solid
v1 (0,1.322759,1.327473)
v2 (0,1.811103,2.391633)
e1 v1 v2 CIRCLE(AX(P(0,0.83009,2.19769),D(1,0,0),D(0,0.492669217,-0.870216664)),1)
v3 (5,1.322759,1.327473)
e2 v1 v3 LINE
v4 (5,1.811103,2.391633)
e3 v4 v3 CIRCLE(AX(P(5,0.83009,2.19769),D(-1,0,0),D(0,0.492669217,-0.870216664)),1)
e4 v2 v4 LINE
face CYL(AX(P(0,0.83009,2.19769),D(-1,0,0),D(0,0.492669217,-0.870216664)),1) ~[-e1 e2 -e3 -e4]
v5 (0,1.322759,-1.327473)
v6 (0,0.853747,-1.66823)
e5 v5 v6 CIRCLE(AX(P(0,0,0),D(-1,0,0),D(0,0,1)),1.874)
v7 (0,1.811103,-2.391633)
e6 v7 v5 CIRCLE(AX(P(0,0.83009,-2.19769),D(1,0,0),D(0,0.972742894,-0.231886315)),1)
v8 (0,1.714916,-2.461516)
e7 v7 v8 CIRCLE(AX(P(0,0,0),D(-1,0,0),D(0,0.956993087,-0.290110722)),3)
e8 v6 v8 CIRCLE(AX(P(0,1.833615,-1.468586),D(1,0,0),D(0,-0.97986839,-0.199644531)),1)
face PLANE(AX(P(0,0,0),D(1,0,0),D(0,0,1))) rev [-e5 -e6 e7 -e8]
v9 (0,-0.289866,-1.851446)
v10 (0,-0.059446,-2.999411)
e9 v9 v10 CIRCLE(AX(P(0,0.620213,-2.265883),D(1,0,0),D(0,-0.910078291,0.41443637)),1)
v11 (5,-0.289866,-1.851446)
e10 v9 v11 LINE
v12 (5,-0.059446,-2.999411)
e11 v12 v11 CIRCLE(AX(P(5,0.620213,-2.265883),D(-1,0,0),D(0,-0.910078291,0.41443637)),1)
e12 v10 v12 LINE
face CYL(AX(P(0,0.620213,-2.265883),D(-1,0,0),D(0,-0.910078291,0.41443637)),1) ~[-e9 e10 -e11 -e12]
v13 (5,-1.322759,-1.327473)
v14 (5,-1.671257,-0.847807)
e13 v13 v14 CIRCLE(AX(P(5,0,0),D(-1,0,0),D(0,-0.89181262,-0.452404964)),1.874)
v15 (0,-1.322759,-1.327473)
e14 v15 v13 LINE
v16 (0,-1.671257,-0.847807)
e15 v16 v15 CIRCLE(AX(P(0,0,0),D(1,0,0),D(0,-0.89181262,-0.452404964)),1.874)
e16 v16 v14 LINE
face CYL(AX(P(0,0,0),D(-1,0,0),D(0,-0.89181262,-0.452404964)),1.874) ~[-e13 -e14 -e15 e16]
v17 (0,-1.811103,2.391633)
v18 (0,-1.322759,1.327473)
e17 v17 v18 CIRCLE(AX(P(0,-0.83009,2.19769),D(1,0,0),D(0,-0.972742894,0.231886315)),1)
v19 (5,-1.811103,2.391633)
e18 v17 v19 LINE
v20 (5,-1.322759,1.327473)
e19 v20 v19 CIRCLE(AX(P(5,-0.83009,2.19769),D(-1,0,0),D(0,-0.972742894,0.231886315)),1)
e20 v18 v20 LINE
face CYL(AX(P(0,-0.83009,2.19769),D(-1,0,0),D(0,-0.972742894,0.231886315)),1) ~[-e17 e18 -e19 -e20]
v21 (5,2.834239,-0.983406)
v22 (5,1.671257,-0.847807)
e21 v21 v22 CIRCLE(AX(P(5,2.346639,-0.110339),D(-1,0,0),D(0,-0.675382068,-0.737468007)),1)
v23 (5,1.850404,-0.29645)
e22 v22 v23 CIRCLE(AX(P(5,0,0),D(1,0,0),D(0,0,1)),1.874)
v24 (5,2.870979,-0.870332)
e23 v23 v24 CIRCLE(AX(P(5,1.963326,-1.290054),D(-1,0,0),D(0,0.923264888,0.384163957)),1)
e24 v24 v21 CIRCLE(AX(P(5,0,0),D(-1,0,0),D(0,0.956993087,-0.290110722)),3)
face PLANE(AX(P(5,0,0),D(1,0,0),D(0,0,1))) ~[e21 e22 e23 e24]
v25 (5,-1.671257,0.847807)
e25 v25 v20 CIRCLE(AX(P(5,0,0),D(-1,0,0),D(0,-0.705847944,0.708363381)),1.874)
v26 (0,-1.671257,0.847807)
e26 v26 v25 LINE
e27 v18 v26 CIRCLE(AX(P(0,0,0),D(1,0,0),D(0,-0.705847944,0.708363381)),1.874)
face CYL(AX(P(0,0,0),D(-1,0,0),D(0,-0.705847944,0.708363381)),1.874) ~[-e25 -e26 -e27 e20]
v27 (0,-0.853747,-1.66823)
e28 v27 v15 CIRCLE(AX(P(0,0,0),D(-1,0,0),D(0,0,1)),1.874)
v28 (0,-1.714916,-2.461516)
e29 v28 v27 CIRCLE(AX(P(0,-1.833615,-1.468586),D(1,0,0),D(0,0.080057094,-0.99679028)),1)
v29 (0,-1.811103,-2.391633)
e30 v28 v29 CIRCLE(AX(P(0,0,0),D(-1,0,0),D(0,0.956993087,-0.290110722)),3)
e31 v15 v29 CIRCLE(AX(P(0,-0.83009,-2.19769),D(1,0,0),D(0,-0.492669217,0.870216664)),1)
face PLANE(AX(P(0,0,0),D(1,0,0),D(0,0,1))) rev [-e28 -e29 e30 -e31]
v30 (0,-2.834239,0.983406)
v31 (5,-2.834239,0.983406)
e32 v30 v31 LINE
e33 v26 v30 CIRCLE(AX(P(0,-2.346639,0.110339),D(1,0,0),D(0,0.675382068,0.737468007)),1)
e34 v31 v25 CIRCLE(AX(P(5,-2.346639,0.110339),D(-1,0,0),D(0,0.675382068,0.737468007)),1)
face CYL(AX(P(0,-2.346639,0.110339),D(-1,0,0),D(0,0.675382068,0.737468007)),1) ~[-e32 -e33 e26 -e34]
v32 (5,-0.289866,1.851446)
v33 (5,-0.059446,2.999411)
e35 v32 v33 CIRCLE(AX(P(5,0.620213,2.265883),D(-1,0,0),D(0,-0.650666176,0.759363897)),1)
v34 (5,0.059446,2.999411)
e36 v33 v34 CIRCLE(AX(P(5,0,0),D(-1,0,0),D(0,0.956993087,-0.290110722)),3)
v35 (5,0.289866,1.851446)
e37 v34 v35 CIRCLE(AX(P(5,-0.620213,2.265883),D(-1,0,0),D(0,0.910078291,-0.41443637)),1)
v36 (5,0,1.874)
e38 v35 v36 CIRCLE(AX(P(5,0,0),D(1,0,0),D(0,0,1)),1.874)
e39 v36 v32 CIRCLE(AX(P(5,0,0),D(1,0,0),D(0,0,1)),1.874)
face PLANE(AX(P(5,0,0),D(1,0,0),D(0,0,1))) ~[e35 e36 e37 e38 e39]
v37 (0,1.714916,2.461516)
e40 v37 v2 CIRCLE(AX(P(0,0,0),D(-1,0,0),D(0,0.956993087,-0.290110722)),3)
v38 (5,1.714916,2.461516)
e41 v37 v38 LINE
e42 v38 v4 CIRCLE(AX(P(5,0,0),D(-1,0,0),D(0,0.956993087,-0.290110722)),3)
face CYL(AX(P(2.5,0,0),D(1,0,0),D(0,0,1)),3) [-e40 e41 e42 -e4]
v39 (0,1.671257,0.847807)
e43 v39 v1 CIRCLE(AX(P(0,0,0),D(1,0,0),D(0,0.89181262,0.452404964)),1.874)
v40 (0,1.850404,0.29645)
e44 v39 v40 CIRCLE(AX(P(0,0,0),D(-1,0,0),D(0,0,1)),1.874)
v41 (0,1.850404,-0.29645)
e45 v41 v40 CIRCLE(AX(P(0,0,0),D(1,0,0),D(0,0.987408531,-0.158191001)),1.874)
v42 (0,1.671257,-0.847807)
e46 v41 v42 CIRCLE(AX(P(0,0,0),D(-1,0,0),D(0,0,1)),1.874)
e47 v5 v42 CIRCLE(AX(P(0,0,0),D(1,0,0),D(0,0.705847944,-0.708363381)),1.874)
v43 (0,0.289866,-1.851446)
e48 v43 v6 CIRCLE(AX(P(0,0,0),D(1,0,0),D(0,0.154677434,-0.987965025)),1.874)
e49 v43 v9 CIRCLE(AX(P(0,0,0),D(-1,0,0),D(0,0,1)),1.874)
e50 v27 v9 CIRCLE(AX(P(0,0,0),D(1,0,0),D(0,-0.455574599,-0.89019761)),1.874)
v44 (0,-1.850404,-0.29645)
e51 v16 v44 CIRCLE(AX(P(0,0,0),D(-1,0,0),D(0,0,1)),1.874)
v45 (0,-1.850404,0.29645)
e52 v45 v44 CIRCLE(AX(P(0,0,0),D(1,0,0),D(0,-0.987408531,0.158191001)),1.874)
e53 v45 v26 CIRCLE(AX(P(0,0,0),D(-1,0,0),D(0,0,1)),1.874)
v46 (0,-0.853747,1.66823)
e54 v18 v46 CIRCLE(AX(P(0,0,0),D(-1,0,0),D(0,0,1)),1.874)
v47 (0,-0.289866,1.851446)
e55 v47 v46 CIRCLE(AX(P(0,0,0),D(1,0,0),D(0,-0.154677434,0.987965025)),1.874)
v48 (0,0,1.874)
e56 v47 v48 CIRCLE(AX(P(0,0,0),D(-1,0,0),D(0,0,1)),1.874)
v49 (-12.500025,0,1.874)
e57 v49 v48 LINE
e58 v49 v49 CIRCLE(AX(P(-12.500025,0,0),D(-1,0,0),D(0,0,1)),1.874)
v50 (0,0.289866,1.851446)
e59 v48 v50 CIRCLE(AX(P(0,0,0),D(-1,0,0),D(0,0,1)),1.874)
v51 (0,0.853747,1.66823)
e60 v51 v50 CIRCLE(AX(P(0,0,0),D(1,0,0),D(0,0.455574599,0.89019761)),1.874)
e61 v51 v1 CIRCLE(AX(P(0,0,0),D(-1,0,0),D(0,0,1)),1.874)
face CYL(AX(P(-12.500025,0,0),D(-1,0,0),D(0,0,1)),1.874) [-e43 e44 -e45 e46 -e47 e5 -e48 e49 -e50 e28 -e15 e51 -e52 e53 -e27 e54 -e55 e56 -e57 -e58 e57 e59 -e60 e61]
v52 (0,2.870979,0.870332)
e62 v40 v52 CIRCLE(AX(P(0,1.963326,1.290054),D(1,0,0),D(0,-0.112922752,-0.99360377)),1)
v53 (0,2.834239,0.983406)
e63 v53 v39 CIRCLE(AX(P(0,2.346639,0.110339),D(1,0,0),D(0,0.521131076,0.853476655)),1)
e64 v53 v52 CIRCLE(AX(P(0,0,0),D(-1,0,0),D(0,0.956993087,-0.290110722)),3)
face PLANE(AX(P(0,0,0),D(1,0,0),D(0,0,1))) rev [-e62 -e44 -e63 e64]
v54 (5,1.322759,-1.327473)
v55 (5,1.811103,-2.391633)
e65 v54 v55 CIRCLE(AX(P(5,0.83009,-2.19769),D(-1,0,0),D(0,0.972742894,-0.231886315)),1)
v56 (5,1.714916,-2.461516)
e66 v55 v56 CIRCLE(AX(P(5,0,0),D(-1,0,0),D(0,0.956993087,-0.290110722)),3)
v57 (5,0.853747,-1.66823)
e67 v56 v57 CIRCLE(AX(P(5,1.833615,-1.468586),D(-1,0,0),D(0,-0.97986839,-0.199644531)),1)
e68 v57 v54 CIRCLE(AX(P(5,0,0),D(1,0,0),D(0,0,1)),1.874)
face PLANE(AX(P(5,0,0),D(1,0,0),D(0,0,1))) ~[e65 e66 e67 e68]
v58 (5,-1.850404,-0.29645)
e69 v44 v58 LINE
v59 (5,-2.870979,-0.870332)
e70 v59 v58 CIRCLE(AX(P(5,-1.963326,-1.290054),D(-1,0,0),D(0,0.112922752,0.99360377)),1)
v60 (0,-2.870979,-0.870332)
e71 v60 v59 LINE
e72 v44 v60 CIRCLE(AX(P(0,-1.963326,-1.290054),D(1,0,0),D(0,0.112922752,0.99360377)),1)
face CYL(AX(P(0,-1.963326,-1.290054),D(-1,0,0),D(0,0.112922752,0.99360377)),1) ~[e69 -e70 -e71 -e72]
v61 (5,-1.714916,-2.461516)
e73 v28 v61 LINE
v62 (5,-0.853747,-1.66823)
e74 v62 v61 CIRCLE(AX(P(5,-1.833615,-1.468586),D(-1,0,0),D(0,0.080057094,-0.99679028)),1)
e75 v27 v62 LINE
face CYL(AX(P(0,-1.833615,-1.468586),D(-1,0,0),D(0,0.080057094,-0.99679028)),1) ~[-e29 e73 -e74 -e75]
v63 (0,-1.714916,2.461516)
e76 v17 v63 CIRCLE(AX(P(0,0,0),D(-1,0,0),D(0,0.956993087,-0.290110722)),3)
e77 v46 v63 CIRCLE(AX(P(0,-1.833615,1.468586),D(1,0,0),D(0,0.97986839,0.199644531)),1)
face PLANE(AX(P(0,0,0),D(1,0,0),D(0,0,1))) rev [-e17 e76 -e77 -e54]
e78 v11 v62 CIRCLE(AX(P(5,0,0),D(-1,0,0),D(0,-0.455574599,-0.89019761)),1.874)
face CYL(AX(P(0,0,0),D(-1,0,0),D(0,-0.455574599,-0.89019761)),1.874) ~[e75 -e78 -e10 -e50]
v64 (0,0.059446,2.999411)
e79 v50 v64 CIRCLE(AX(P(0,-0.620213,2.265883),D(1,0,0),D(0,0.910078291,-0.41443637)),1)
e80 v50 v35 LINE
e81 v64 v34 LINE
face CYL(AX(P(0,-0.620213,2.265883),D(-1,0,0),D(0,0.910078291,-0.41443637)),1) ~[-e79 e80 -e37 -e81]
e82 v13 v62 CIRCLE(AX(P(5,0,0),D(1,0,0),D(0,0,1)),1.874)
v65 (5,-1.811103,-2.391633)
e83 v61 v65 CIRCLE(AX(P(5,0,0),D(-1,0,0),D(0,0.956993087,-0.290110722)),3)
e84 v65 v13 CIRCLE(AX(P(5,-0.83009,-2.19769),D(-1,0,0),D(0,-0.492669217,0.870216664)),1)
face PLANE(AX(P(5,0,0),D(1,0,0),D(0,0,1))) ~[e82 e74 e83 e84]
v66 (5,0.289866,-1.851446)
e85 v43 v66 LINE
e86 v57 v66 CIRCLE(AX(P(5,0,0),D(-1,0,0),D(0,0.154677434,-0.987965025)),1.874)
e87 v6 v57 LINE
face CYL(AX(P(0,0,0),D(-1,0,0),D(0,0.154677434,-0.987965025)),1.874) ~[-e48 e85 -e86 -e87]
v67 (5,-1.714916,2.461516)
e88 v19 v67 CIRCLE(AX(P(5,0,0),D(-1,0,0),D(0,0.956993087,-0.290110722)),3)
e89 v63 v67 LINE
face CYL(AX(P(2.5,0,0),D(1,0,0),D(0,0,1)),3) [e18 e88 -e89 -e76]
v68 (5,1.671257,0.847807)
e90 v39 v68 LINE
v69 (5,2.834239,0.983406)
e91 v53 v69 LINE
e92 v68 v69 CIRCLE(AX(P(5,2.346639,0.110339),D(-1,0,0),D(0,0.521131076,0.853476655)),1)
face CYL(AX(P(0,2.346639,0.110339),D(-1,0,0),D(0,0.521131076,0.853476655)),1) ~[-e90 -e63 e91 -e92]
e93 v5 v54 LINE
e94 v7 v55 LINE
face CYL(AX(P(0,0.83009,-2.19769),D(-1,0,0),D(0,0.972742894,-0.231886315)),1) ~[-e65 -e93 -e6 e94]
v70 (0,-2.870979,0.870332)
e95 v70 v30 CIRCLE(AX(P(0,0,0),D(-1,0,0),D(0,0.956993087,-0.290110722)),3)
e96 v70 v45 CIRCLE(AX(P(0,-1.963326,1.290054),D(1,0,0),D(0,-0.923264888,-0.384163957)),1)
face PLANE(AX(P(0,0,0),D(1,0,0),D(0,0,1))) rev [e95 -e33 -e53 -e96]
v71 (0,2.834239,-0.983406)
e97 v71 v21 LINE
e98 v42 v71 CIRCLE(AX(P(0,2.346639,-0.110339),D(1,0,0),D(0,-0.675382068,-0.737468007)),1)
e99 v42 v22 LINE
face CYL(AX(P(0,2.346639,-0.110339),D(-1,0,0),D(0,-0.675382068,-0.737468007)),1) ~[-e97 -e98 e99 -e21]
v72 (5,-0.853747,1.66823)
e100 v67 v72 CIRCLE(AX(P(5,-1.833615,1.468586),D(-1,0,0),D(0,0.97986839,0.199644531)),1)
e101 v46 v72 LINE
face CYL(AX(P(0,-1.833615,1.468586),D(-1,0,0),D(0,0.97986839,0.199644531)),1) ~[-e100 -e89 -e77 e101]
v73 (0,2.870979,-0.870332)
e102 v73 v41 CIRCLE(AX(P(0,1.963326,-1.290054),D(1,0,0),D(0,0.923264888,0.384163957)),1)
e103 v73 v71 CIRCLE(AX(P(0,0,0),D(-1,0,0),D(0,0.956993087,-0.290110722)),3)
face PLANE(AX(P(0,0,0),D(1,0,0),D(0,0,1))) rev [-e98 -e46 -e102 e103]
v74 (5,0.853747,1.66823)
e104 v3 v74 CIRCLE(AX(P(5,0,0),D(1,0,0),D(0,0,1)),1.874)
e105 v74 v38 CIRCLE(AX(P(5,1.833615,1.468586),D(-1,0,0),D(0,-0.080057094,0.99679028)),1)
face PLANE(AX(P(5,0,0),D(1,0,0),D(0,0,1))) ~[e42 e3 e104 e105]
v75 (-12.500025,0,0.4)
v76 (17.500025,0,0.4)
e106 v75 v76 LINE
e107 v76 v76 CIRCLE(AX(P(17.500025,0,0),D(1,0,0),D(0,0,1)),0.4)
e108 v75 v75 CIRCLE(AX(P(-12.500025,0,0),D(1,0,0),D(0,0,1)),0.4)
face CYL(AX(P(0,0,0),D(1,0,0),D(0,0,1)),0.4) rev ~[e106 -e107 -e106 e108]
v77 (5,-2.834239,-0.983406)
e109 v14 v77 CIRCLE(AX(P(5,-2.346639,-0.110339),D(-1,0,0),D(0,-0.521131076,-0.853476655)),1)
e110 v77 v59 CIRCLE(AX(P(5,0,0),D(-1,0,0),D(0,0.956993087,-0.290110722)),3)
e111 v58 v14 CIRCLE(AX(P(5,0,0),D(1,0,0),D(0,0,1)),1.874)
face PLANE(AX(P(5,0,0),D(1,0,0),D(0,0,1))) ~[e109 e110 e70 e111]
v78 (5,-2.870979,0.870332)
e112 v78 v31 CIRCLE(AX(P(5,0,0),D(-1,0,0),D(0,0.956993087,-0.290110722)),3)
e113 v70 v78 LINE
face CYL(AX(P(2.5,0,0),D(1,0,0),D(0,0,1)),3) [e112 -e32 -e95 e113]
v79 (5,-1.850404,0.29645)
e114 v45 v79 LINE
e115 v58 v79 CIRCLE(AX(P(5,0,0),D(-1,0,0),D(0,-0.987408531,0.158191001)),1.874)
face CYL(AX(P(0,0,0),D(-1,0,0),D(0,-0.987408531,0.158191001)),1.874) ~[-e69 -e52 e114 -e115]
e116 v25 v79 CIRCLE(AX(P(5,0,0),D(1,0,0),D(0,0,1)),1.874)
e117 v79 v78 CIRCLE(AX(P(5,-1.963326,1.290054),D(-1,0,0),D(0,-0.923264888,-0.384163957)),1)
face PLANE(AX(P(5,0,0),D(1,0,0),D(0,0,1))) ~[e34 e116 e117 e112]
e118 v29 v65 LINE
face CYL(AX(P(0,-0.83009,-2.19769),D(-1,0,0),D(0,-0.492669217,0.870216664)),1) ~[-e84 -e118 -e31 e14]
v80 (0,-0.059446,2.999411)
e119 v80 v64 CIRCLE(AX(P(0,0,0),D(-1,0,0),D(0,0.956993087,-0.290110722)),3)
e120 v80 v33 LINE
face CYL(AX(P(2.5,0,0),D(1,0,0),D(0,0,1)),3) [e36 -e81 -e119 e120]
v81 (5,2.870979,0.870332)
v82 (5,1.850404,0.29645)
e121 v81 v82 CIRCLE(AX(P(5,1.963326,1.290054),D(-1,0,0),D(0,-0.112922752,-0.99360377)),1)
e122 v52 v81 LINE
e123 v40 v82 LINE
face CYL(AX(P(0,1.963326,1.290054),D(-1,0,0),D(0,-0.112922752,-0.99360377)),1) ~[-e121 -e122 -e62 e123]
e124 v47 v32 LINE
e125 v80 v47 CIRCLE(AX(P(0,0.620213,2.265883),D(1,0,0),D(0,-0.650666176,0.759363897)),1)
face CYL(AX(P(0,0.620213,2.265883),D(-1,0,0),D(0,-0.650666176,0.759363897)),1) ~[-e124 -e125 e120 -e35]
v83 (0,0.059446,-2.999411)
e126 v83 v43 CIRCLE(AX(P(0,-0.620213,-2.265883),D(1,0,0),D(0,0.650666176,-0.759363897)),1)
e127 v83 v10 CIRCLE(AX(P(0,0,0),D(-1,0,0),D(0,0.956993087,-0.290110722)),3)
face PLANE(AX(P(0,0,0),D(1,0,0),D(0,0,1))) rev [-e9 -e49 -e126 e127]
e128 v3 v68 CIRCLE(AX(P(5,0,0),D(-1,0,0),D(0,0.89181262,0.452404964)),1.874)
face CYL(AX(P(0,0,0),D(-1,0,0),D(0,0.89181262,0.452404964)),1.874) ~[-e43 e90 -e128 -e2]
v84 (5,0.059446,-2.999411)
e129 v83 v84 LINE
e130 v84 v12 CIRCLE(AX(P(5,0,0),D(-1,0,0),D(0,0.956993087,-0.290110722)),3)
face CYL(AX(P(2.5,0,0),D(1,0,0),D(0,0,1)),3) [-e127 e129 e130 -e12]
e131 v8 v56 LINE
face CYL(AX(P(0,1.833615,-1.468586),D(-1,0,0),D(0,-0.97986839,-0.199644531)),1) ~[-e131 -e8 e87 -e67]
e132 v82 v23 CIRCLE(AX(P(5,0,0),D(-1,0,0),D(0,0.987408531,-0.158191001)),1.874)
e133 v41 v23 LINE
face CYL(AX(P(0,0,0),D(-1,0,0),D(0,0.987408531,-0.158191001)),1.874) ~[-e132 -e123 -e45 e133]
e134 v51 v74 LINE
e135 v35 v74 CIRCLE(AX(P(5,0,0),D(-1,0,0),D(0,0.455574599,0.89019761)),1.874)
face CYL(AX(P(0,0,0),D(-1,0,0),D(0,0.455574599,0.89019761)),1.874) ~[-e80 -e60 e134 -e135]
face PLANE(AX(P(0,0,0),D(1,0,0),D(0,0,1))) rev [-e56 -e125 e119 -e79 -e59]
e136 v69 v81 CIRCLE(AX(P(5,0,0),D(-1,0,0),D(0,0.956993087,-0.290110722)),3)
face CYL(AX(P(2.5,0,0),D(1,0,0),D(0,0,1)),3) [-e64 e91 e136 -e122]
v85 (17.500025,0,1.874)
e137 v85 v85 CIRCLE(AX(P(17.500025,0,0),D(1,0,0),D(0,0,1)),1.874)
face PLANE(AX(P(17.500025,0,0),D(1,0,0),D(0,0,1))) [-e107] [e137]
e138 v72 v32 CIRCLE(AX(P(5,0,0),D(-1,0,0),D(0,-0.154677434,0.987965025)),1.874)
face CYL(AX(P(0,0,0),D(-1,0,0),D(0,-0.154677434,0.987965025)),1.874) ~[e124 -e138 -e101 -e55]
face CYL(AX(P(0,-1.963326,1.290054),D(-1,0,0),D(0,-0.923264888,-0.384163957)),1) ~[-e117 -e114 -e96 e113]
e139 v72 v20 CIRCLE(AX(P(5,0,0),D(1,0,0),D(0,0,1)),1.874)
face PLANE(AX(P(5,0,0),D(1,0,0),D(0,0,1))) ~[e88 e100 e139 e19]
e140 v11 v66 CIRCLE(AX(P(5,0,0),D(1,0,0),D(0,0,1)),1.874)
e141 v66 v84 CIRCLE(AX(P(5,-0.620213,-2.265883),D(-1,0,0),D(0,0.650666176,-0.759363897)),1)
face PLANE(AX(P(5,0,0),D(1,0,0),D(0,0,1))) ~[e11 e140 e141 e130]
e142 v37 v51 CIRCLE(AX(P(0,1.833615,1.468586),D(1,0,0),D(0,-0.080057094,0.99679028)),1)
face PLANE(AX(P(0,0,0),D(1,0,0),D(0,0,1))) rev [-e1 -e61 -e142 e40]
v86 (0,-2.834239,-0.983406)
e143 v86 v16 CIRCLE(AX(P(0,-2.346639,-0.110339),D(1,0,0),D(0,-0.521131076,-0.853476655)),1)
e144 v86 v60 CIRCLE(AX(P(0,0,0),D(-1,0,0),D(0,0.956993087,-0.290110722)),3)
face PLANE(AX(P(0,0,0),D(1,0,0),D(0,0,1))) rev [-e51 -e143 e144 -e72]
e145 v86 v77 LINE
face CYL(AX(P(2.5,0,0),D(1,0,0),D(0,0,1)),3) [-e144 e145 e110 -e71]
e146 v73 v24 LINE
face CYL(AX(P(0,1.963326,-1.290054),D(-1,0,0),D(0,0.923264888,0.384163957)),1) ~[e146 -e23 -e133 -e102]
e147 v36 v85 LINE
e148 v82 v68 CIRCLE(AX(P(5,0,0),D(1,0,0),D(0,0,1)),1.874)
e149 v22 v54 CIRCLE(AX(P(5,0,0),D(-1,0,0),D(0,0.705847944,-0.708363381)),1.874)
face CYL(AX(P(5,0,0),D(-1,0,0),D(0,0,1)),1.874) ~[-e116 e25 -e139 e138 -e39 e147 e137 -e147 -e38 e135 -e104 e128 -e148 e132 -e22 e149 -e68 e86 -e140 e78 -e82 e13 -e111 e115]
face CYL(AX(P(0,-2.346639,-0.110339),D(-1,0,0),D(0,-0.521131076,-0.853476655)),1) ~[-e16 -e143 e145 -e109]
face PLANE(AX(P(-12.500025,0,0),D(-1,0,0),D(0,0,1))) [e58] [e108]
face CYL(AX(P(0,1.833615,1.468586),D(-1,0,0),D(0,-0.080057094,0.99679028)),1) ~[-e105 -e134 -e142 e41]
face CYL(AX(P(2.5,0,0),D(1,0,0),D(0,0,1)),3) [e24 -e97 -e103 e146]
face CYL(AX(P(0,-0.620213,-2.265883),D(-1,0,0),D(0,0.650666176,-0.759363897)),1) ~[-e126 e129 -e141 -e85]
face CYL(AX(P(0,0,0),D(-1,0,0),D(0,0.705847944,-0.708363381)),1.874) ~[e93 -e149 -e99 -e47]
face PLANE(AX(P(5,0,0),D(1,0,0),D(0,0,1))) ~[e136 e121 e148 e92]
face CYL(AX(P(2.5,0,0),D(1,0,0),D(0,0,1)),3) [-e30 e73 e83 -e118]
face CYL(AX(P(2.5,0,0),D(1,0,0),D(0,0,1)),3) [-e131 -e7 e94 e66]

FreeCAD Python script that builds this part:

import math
import FreeCAD as App
import Part
import Sketcher

doc = App.newDocument("Part")
body = doc.addObject("PartDesign::Body", "Body")

sketch1 = body.newObject("Sketcher::SketchObject", "Sketch")
sketch1.AttachmentSupport = (doc.getObject("XZ_Plane"), [""])
sketch1.MapMode = "FlatFace"
sketch1.addGeometry([
    Part.LineSegment(App.Vector(0, -3, 0), App.Vector(0, 0, 0)),
    Part.LineSegment(App.Vector(0, 0, 0), App.Vector(5, 0, 0)),
    Part.LineSegment(App.Vector(5, 0, 0), App.Vector(5, -3, 0)),
    Part.LineSegment(App.Vector(5, -3, 0), App.Vector(0, -3, 0)),
], False)
sketch1.addConstraint([
    Sketcher.Constraint("Coincident", 0, 2, 1, 1),
    Sketcher.Constraint("Coincident", 1, 2, 2, 1),
    Sketcher.Constraint("Coincident", 2, 2, 3, 1),
    Sketcher.Constraint("Coincident", 3, 2, 0, 1),
    Sketcher.Constraint("Vertical", 0),
    Sketcher.Constraint("Horizontal", 1),
    Sketcher.Constraint("Vertical", 2),
    Sketcher.Constraint("Horizontal", 3),
    Sketcher.Constraint("Coincident", 0, 2, -1, 1),
    Sketcher.Constraint("DistanceX", 1, 1, 1, 2, 5.0),
    Sketcher.Constraint("DistanceY", 0, 1, 0, 2, 3.0),
])
revolution = body.newObject("PartDesign::Revolution", "Revolution")
revolution.Profile = sketch1
revolution.ReferenceAxis = (sketch1, ["H_Axis"])
revolution.Angle = 360

sketch2 = body.newObject("Sketcher::SketchObject", "Sketch001")
sketch2.AttachmentSupport = (doc.getObject("YZ_Plane"), [""])
sketch2.MapMode = "FlatFace"
sketch2.addGeometry([
    Part.ArcOfCircle(Part.Circle(App.Vector(0, 0, 0), App.Vector(0, 0, 1), 1.9), math.radians(-9.1), math.radians(9.1)),
    Part.ArcOfCircle(Part.Circle(App.Vector(2, -1.3, 0), App.Vector(0, 0, 1), 1), math.radians(23), math.radians(96)),
    Part.ArcOfCircle(Part.Circle(App.Vector(0, 0, 0), App.Vector(0, 0, 1), 3), math.radians(-17), math.radians(17)),
    Part.ArcOfCircle(Part.Circle(App.Vector(2, 1.3, 0), App.Vector(0, 0, 1), 1), math.radians(-96), math.radians(-23)),
], False)
sketch2.addConstraint([
    Sketcher.Constraint("Coincident", 0, 1, 1, 2),
    Sketcher.Constraint("Coincident", 1, 1, 2, 1),
    Sketcher.Constraint("Coincident", 2, 2, 3, 2),
    Sketcher.Constraint("Coincident", 3, 1, 0, 2),
    Sketcher.Constraint("Coincident", 0, 3, -1, 1),
    Sketcher.Constraint("Coincident", 2, 3, -1, 1),
    Sketcher.Constraint("Equal", 1, 3),
    Sketcher.Constraint("Symmetric", 1, 3, 3, 3, -1),
    Sketcher.Constraint("Radius", 1, 1.0),
    Sketcher.Constraint("Radius", 0, 1.874),
    Sketcher.Constraint("Radius", 2, 3.0254),
    Sketcher.Constraint("DistanceY", 0, 1, 3, 1, 0.5929),
    Sketcher.Constraint("DistanceX", -1, 1, 1, 1, 2.886591),
])
pocket1 = body.newObject("PartDesign::Pocket", "Pocket")
pocket1.Profile = sketch2
pocket1.Type = "ThroughAll"
pocket1.Reversed = True
doc.recompute()

polarpattern = body.newObject("PartDesign::PolarPattern", "PolarPattern")
polarpattern.Originals = [pocket1]
polarpattern.Axis = (doc.getObject("X_Axis"), [""])
polarpattern.Angle = 360
polarpattern.Occurrences = 10
body.Tip = polarpattern

sketch3 = body.newObject("Sketcher::SketchObject", "Sketch002")
sketch3.AttachmentSupport = (doc.getObject("YZ_Plane"), [""])
sketch3.MapMode = "FlatFace"
sketch3.AttachmentOffset = App.Placement(App.Vector(0, 0, -12.500025), App.Rotation())
sketch3.addGeometry(Part.Circle(App.Vector(0, 0, 0), App.Vector(0, 0, 1), 1.9), False)
sketch3.addConstraint([
    Sketcher.Constraint("Coincident", 0, 3, -1, 1),
    Sketcher.Constraint("Diameter", 0, 3.748),
])
pad1 = body.newObject("PartDesign::Pad", "Pad")
pad1.Profile = sketch3
pad1.Length = 12.500025

sketch4 = body.newObject("Sketcher::SketchObject", "Sketch003")
sketch4.AttachmentSupport = (doc.getObject("YZ_Plane"), [""])
sketch4.MapMode = "FlatFace"
sketch4.AttachmentOffset = App.Placement(App.Vector(0, 0, 5), App.Rotation())
sketch4.addGeometry(Part.Circle(App.Vector(0, 0, 0), App.Vector(0, 0, 1), 1.9), False)
sketch4.addConstraint([
    Sketcher.Constraint("Coincident", 0, 3, -1, 1),
    Sketcher.Constraint("Diameter", 0, 3.748),
])
pad2 = body.newObject("PartDesign::Pad", "Pad001")
pad2.Profile = sketch4
pad2.Length = 12.500025

sketch5 = body.newObject("Sketcher::SketchObject", "Sketch004")
sketch5.AttachmentSupport = (doc.getObject("YZ_Plane"), [""])
sketch5.MapMode = "FlatFace"
sketch5.addGeometry(Part.Circle(App.Vector(0, 0, 0), App.Vector(0, 0, 1), 0.4), False)
sketch5.addConstraint([
    Sketcher.Constraint("Coincident", 0, 3, -1, 1),
    Sketcher.Constraint("Diameter", 0, 0.8),
])
pocket2 = body.newObject("PartDesign::Pocket", "Pocket001")
pocket2.Profile = sketch5
pocket2.Length = 60.000102
pocket2.Midplane = True

doc.recompute()
